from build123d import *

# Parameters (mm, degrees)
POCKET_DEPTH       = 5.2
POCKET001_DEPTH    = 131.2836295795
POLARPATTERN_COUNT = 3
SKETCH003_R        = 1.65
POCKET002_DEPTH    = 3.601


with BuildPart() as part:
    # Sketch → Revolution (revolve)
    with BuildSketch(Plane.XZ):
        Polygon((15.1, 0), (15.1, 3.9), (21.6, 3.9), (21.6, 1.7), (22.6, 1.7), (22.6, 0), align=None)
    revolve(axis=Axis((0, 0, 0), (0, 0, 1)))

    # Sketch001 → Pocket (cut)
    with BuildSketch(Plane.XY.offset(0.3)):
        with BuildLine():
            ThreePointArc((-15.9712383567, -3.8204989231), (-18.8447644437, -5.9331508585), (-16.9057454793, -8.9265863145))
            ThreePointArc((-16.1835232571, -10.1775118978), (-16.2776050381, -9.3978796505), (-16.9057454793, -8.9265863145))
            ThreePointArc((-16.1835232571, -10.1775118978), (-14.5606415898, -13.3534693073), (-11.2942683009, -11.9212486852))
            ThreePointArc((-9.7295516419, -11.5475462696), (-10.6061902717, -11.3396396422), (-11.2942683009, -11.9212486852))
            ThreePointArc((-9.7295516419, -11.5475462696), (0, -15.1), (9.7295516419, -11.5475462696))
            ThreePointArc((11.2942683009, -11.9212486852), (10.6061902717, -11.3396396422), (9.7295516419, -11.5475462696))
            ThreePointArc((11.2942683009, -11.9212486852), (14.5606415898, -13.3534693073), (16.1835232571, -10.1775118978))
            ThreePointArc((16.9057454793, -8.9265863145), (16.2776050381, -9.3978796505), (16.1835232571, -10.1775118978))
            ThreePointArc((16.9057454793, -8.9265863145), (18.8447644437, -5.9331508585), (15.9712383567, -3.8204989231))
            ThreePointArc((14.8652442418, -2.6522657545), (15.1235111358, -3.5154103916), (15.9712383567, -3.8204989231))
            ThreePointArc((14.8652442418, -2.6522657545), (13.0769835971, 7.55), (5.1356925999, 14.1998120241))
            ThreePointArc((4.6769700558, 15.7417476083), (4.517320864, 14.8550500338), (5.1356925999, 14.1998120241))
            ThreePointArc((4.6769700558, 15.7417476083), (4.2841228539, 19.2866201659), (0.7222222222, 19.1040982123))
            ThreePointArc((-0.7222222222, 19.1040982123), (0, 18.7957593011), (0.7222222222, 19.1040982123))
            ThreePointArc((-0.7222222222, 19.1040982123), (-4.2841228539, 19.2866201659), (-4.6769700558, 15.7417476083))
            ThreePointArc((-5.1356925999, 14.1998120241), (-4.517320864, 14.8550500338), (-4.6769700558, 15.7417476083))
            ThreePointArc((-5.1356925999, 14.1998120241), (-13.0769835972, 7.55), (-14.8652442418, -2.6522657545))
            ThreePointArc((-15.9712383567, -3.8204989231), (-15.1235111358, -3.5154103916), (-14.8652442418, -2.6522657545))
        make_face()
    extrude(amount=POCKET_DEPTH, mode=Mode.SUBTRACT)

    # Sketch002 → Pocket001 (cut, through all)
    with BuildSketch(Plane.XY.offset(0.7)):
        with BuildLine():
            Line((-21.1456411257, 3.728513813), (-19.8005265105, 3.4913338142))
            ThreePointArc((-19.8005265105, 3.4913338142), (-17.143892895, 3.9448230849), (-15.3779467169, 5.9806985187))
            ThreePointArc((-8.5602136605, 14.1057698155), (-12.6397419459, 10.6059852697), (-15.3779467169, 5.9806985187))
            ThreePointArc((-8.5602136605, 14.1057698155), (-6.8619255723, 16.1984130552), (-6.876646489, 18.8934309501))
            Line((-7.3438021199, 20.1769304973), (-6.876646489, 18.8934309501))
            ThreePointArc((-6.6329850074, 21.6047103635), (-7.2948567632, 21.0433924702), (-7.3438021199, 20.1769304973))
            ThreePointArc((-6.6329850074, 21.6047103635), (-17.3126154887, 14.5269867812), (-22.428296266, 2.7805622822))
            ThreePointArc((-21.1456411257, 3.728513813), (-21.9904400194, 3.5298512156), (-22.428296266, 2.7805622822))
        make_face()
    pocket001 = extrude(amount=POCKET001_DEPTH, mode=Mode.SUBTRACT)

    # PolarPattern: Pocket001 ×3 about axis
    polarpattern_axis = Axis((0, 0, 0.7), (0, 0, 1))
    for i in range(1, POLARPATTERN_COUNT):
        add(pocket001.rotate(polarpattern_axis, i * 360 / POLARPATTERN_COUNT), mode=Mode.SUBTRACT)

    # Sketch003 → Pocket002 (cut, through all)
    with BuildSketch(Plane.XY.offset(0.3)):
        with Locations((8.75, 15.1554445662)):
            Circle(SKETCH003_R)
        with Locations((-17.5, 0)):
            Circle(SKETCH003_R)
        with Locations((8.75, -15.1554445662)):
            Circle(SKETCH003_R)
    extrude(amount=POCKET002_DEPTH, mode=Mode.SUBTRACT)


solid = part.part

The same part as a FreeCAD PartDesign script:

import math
import FreeCAD as App
import Part
import Sketcher

V = App.Vector
Q = App.Units.Quantity

doc = App.newDocument("Part")
body = doc.addObject("PartDesign::Body", "Body")

# Sketch on XZ plane
sketch1 = body.newObject("Sketcher::SketchObject", "Sketch")
sketch1.AttachmentSupport = (doc.getObject("XZ_Plane"), [""])
sketch1.MapMode = "FlatFace"
sketch1.addGeometry([
    Part.LineSegment(V(15.1, 3.9, 0), V(15.1, 0, 0)),  # 0
    Part.LineSegment(V(15.1, 0, 0), V(22.6, 0, 0)),  # 1
    Part.LineSegment(V(22.6, 0, 0), V(22.6, 1.7, 0)),  # 2
    Part.LineSegment(V(22.6, 1.7, 0), V(21.6, 1.7, 0)),  # 3
    Part.LineSegment(V(21.6, 1.7, 0), V(21.6, 3.9, 0)),  # 4
    Part.LineSegment(V(21.6, 3.9, 0), V(15.1, 3.9, 0)),  # 5
], False)
sketch1.addConstraint([
    Sketcher.Constraint("Coincident", 0, 2, 1, 1),
    Sketcher.Constraint("Coincident", 1, 2, 2, 1),
    Sketcher.Constraint("Coincident", 2, 2, 3, 1),
    Sketcher.Constraint("Coincident", 3, 2, 4, 1),
    Sketcher.Constraint("Coincident", 4, 2, 5, 1),
    Sketcher.Constraint("Coincident", 5, 2, 0, 1),
    Sketcher.Constraint("Vertical", 0),
    Sketcher.Constraint("Horizontal", 1),
    Sketcher.Constraint("Vertical", 2),
    Sketcher.Constraint("Horizontal", 3),
    Sketcher.Constraint("Vertical", 4),
    Sketcher.Constraint("Horizontal", 5),
    Sketcher.Constraint("PointOnObject", 0, 2, -1),
    Sketcher.Constraint("DistanceX", 3, 2, 3, 1, 1.0),
    Sketcher.Constraint("DistanceX", 1, 1, 1, 2, 7.5),
    Sketcher.Constraint("DistanceY", 0, 2, 0, 1, 3.9),
    Sketcher.Constraint("DistanceY", 2, 1, 2, 2, 1.7),
    Sketcher.Constraint("DistanceX", -1, 1, 0, 2, 15.1),
])
revolution = body.newObject("PartDesign::Revolution", "Revolution")
revolution.Profile = sketch1
revolution.ReferenceAxis = (sketch1, ["V_Axis"])
revolution.Angle = 360

# Sketch on XY plane
sketch2 = body.newObject("Sketcher::SketchObject", "Sketch001")
sketch2.AttachmentSupport = (doc.getObject("XY_Plane"), [""])
sketch2.MapMode = "FlatFace"
sketch2.AttachmentOffset = App.Placement(V(0, 0, 0.3), App.Rotation())
sketch2.addGeometry([
    Part.ArcOfCircle(Part.Circle(V(-16.3, -6.4, 0), V(0, 0, 1), 2.6), math.radians(83), math.radians(256)),  # 0
    Part.ArcOfCircle(Part.Circle(V(-17.1, -9.9, 0), V(0, 0, 1), 1), math.radians(-16), math.radians(76)),  # 1
    Part.ArcOfCircle(Part.Circle(V(-13.7, -10.9, 0), V(0, 0, 1), 2.6), math.radians(164), math.radians(337)),  # 2
    Part.ArcOfCircle(Part.Circle(V(-10.4, -12.3, 0), V(0, 0, 1), 1), math.radians(50), math.radians(157)),  # 3
    Part.ArcOfCircle(Part.Circle(V(0, 0, 0), V(0, 0, 1), 15.1), math.radians(-130), math.radians(-50)),  # 4
    Part.ArcOfCircle(Part.Circle(V(10.4, -12.3, 0), V(0, 0, 1), 1), math.radians(23), math.radians(130)),  # 5
    Part.ArcOfCircle(Part.Circle(V(13.7, -10.9, 0), V(0, 0, 1), 2.6), math.radians(-157), math.radians(16)),  # 6
    Part.ArcOfCircle(Part.Circle(V(17.1, -9.9, 0), V(0, 0, 1), 1), math.radians(104), math.radians(196)),  # 7
    Part.ArcOfCircle(Part.Circle(V(16.3, -6.4, 0), V(0, 0, 1), 2.6), math.radians(-76), math.radians(97)),  # 8
    Part.ArcOfCircle(Part.Circle(V(15.8, -2.8, 0), V(0, 0, 1), 1), math.radians(170), math.radians(277)),  # 9
    Part.ArcOfCircle(Part.Circle(V(0, 0, 0), V(0, 0, 1), 15.1), math.radians(-10), math.radians(70)),  # 10
    Part.ArcOfCircle(Part.Circle(V(5.5, 15.1, 0), V(0, 0, 1), 1), math.radians(143), math.radians(250)),  # 11
    Part.ArcOfCircle(Part.Circle(V(2.6, 17.3, 0), V(0, 0, 1), 2.6), math.radians(-37), math.radians(136)),  # 12
    Part.ArcOfCircle(Part.Circle(V(0, 19.8, 0), V(0, 0, 1), 1), math.radians(-136), math.radians(-44)),  # 13
    Part.ArcOfCircle(Part.Circle(V(-2.6, 17.3, 0), V(0, 0, 1), 2.6), math.radians(44), math.radians(217)),  # 14
    Part.ArcOfCircle(Part.Circle(V(-5.5, 15.1, 0), V(0, 0, 1), 1), math.radians(-70), math.radians(37)),  # 15
    Part.ArcOfCircle(Part.Circle(V(0, 0, 0), V(0, 0, 1), 15.1), math.radians(110), math.radians(190)),  # 16
    Part.ArcOfCircle(Part.Circle(V(-15.8, -2.8, 0), V(0, 0, 1), 1), math.radians(-97), math.radians(10)),  # 17
], False)
sketch2.addConstraint([
    Sketcher.Constraint("Tangent", 0, 2, 1, 2),
    Sketcher.Constraint("Tangent", 1, 1, 2, 1),
    Sketcher.Constraint("Tangent", 2, 2, 3, 2),
    Sketcher.Constraint("Tangent", 3, 1, 4, 1),
    Sketcher.Constraint("Tangent", 4, 2, 5, 2),
    Sketcher.Constraint("Tangent", 5, 1, 6, 1),
    Sketcher.Constraint("Tangent", 6, 2, 7, 2),
    Sketcher.Constraint("Tangent", 7, 1, 8, 1),
    Sketcher.Constraint("Tangent", 8, 2, 9, 2),
    Sketcher.Constraint("Tangent", 9, 1, 10, 1),
    Sketcher.Constraint("Tangent", 10, 2, 11, 2),
    Sketcher.Constraint("Tangent", 11, 1, 12, 1),
    Sketcher.Constraint("Tangent", 12, 2, 13, 2),
    Sketcher.Constraint("Tangent", 13, 1, 14, 1),
    Sketcher.Constraint("Tangent", 14, 2, 15, 2),
    Sketcher.Constraint("Tangent", 15, 1, 16, 1),
    Sketcher.Constraint("Tangent", 16, 2, 17, 2),
    Sketcher.Constraint("Tangent", 17, 1, 0, 1),
    Sketcher.Constraint("Coincident", 4, 3, -1, 1),
    Sketcher.Constraint("Coincident", 10, 3, -1, 1),
    Sketcher.Constraint("Coincident", 16, 3, -1, 1),
    Sketcher.Constraint("Equal", 0, 2),
    Sketcher.Constraint("Equal", 1, 3),
    Sketcher.Constraint("Equal", 3, 5),
    Sketcher.Constraint("Equal", 2, 6),
    Sketcher.Constraint("Equal", 5, 7),
    Sketcher.Constraint("Equal", 6, 8),
    Sketcher.Constraint("Equal", 7, 9),
    Sketcher.Constraint("Equal", 4, 10),
    Sketcher.Constraint("Equal", 9, 11),
    Sketcher.Constraint("Equal", 8, 12),
    Sketcher.Constraint("Equal", 11, 13),
    Sketcher.Constraint("Equal", 12, 14),
    Sketcher.Constraint("Equal", 13, 15),
    Sketcher.Constraint("Equal", 10, 16),
    Sketcher.Constraint("Equal", 15, 17),
    Sketcher.Constraint("Symmetric", 2, 3, 6, 3, -2),
    Sketcher.Constraint("Symmetric", 0, 3, 8, 3, -2),
    Sketcher.Constraint("Symmetric", 12, 3, 14, 3, -2),
    Sketcher.Constraint("Radius", 1, 1.0),
    Sketcher.Constraint("Radius", 0, 2.6),
    Sketcher.Constraint("Radius", 4, 15.1),
    Sketcher.Constraint("DistanceX", -1, 1, 12, 3, 2.6),
    Sketcher.Constraint("DistanceX", 0, 3, 2, 3, 2.6),
    Sketcher.Constraint("DistanceX", 9, 1, 8, 3, 1.422),
    Sketcher.Constraint("DistanceY", 8, 2, -1, 1, 3.820499),
    Sketcher.Constraint("DistanceY", -1, 1, 12, 2, 19.104098),
    Sketcher.Constraint("DistanceX", 0, 2, 0, 3, 0.618501),
])
pocket1 = body.newObject("PartDesign::Pocket", "Pocket")
pocket1.Profile = sketch2
pocket1.Length = 5.2
pocket1.Reversed = True

# Sketch on XY plane
sketch3 = body.newObject("Sketcher::SketchObject", "Sketch002")
sketch3.AttachmentSupport = (doc.getObject("XY_Plane"), [""])
sketch3.MapMode = "FlatFace"
sketch3.AttachmentOffset = App.Placement(V(0, 0, 0.7), App.Rotation())
sketch3.addGeometry([
    Part.LineSegment(V(-21.1, 3.7, 0), V(-19.8, 3.5, 0)),  # 0
    Part.ArcOfCircle(Part.Circle(V(-19.1, 7.4, 0), V(0, 0, 1), 4), math.radians(-100), math.radians(-21)),  # 1
    Part.ArcOfCircle(Part.Circle(V(0, 0, 0), V(0, 0, 1), 16.5), math.radians(121), math.radians(159)),  # 2
    Part.ArcOfCircle(Part.Circle(V(-10.6, 17.5, 0), V(0, 0, 1), 4), math.radians(-59), math.radians(20)),  # 3
    Part.LineSegment(V(-6.9, 18.9, 0), V(-7.3, 20.2, 0)),  # 4
    Part.ArcOfCircle(Part.Circle(V(-6.3, 20.6, 0), V(0, 0, 1), 1.1), math.radians(107), math.radians(200)),  # 5
    Part.ArcOfCircle(Part.Circle(V(0, 0, 0), V(0, 0, 1), 22.6), math.radians(107), math.radians(173)),  # 6
    Part.ArcOfCircle(Part.Circle(V(-21.3, 2.6, 0), V(0, 0, 1), 1.1), math.radians(80), math.radians(173)),  # 7
], False)
sketch3.addConstraint([
    Sketcher.Constraint("Tangent", 0, 2, 1, 1),
    Sketcher.Constraint("Tangent", 1, 2, 2, 2),
    Sketcher.Constraint("Tangent", 2, 1, 3, 1),
    Sketcher.Constraint("Tangent", 3, 2, 4, 1),
    Sketcher.Constraint("Tangent", 4, 2, 5, 2),
    Sketcher.Constraint("Tangent", 5, 1, 6, 1),
    Sketcher.Constraint("Tangent", 6, 2, 7, 2),
    Sketcher.Constraint("Tangent", 7, 1, 0, 1),
    Sketcher.Constraint("Coincident", 2, 3, -1, 1),
    Sketcher.Constraint("Coincident", 6, 3, -1, 1),
    Sketcher.Constraint("Equal", 1, 3),
    Sketcher.Constraint("Equal", 5, 7),
    Sketcher.Constraint("Radius", 1, 4.0),
    Sketcher.Constraint("Radius", 2, 16.5),
    Sketcher.Constraint("Radius", 5, 1.1),
    Sketcher.Constraint("Radius", 6, 22.6),
    Sketcher.Constraint("Angle", 0, Q("-10 deg")),
    Sketcher.Constraint("Angle", 4, Q("110 deg")),
    Sketcher.Constraint("DistanceY", -1, 1, 1, 2, 5.980699),
    Sketcher.Constraint("DistanceX", 1, 2, 3, 2, 8.5013),
])
pocket2 = body.newObject("PartDesign::Pocket", "Pocket001")
pocket2.Profile = sketch3
pocket2.Type = "ThroughAll"
pocket2.Reversed = True
doc.recompute()

polarpattern = body.newObject("PartDesign::PolarPattern", "PolarPattern")
polarpattern.Originals = [pocket2]
polarpattern.Axis = (doc.getObject("Z_Axis"), [""])
polarpattern.Angle = 360
polarpattern.Occurrences = 3
body.Tip = polarpattern

# Sketch on XY plane
sketch4 = body.newObject("Sketcher::SketchObject", "Sketch003")
sketch4.AttachmentSupport = (doc.getObject("XY_Plane"), [""])
sketch4.MapMode = "FlatFace"
sketch4.AttachmentOffset = App.Placement(V(0, 0, 0.3), App.Rotation())
sketch4.addGeometry([
    Part.Circle(V(8.8, 15.2, 0), V(0, 0, 1), 1.6),
    Part.Circle(V(-17.5, 0, 0), V(0, 0, 1), 1.6),
    Part.Circle(V(8.8, -15.2, 0), V(0, 0, 1), 1.6),
], False)
sketch4.addConstraint([
    Sketcher.Constraint("Equal", 0, 1),
    Sketcher.Constraint("Equal", 1, 2),
    Sketcher.Constraint("Symmetric", 0, 3, 2, 3, -1),
    Sketcher.Constraint("PointOnObject", 1, 3, -1),
    Sketcher.Constraint("Diameter", 0, 3.3),
    Sketcher.Constraint("DistanceX", 1, 3, -1, 1, 17.5),
    Sketcher.Constraint("DistanceX", -1, 1, 0, 3, 8.75),
    Sketcher.Constraint("DistanceY", 2, 3, 0, 3, 30.310889),
])
pocket3 = body.newObject("PartDesign::Pocket", "Pocket002")
pocket3.Profile = sketch4
pocket3.Type = "ThroughAll"
pocket3.Reversed = True

doc.recompute()
